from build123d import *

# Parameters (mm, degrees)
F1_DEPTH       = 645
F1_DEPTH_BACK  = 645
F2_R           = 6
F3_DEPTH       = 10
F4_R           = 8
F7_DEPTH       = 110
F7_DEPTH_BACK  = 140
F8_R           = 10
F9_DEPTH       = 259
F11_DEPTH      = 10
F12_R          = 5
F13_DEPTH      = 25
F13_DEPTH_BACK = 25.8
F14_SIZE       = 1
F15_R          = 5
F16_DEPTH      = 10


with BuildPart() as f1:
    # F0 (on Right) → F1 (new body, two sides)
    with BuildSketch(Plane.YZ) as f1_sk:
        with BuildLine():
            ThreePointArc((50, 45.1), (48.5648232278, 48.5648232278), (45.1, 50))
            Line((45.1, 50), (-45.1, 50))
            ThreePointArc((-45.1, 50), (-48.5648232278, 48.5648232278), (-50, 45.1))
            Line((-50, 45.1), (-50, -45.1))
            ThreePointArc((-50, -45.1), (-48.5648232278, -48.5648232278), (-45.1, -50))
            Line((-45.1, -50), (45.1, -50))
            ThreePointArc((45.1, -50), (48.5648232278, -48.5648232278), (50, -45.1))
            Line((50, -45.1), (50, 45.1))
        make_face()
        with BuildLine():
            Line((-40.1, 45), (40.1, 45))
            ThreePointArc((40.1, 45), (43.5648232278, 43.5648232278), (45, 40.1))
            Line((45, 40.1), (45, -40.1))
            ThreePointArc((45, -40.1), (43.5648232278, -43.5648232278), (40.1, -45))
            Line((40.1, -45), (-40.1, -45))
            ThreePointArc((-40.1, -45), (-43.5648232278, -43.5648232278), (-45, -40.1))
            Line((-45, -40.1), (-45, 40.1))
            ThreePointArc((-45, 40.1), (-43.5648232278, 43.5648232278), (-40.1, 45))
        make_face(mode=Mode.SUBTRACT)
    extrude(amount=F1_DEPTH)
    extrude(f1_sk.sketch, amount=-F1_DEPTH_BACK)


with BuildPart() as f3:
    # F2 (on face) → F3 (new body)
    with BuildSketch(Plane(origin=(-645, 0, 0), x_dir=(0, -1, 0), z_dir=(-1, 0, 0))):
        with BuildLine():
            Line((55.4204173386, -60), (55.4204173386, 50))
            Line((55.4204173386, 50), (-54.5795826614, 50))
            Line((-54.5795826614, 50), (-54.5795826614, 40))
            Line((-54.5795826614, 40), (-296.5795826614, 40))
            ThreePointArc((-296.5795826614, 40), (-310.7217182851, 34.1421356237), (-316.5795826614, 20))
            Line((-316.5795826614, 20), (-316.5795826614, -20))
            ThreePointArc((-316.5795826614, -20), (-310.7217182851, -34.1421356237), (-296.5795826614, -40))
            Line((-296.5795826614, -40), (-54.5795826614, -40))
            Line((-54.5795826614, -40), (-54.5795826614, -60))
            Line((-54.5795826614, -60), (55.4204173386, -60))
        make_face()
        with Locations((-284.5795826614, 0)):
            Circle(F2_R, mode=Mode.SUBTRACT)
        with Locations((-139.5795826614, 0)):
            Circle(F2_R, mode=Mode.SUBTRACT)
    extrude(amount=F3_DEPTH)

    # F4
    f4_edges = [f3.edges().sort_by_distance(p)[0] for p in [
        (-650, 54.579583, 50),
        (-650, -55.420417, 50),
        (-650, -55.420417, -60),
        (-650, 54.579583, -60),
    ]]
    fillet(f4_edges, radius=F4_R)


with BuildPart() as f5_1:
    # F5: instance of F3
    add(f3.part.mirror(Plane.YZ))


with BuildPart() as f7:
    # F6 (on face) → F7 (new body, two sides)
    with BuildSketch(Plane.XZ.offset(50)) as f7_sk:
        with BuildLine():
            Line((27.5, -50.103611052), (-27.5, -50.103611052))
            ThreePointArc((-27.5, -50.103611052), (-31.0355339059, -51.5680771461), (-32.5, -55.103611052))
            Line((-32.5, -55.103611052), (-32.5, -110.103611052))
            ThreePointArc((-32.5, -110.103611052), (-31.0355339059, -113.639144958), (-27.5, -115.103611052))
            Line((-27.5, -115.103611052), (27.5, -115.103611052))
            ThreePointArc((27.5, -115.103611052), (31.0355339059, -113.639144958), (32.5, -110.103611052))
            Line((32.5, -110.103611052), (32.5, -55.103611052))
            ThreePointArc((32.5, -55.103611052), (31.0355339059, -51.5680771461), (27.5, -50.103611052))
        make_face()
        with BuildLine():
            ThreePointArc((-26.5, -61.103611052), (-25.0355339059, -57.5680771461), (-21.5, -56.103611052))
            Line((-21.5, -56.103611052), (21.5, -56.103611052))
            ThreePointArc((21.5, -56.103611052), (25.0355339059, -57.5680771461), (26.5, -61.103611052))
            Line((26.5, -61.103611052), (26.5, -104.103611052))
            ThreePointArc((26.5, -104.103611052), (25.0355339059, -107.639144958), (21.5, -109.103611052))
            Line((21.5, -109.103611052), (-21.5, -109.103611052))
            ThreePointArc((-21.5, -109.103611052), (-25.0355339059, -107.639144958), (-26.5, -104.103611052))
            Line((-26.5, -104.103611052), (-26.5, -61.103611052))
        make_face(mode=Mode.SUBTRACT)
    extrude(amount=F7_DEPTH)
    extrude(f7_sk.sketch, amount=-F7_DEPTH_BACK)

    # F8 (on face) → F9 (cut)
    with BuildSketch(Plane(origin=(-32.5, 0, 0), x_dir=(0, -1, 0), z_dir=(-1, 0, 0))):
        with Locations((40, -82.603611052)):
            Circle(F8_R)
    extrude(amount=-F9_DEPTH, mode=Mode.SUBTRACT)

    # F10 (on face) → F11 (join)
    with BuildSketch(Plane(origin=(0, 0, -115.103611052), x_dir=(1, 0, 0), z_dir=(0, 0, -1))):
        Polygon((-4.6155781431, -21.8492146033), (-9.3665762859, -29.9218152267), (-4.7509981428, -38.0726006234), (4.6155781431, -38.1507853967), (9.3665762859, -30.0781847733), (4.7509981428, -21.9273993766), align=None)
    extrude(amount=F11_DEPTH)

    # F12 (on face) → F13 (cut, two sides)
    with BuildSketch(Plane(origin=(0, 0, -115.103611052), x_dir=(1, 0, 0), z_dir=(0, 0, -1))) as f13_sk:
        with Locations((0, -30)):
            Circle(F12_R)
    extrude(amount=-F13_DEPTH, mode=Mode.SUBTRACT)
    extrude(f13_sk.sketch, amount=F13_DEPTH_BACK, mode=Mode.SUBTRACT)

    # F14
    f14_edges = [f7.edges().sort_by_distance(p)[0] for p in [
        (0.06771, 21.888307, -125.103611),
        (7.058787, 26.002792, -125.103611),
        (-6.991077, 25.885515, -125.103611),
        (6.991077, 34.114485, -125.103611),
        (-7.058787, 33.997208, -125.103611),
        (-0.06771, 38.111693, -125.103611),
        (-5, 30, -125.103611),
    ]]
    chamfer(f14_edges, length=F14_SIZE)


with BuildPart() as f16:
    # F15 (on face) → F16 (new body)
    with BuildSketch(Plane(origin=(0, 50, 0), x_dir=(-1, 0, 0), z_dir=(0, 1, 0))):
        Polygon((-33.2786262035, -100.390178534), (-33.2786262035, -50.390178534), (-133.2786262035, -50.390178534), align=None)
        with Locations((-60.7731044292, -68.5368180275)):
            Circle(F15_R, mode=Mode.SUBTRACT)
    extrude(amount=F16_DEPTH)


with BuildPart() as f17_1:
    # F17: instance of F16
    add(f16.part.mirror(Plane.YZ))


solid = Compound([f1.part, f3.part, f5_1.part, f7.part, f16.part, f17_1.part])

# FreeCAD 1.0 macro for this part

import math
import FreeCAD as App
import Part
import Sketcher
from FreeCAD import Vector
Q = App.Units.Quantity


def edges_at(feature, points):
    """Names of the edges that pass closest to the given points."""
    edges = feature.Shape.Edges
    near = lambda p: min(range(len(edges)), key=lambda i: edges[i].distToShape(Part.Vertex(*p))[0])
    return sorted({f"Edge{near(p) + 1}" for p in points})


def add_polygon(sketch, points):
    """Adds a closed chain of lines whose ends are joined by coincident constraints."""
    first, n = sketch.GeometryCount, len(points)
    for a, b in zip(points, points[1:] + points[:1]):
        sketch.addGeometry(Part.LineSegment(App.Vector(*a, 0), App.Vector(*b, 0)), False)
    for i in range(n):
        sketch.addConstraint(Sketcher.Constraint("Coincident", first + i, 2, first + (i + 1) % n, 1))

doc = App.newDocument("Part")
body = doc.addObject("PartDesign::Body", "Body")

# Sketch on YZ plane
sketch1 = body.newObject("Sketcher::SketchObject", "Sketch")
sketch1.AttachmentSupport = (doc.getObject("YZ_Plane"), [""])
sketch1.MapMode = "FlatFace"
sketch1.addGeometry([
    Part.ArcOfCircle(Part.Circle(Vector(45.1, 45.1, 0), Vector(0, 0, 1), 4.9), math.radians(0), math.radians(90)),  # 0
    Part.LineSegment(Vector(45.1, 50, 0), Vector(-45.1, 50, 0)),  # 1
    Part.ArcOfCircle(Part.Circle(Vector(-45.1, 45.1, 0), Vector(0, 0, 1), 4.9), math.radians(90), math.radians(180)),  # 2
    Part.LineSegment(Vector(-50, 45.1, 0), Vector(-50, -45.1, 0)),  # 3
    Part.ArcOfCircle(Part.Circle(Vector(-45.1, -45.1, 0), Vector(0, 0, 1), 4.9), math.radians(180), math.radians(270)),  # 4
    Part.LineSegment(Vector(-45.1, -50, 0), Vector(45.1, -50, 0)),  # 5
    Part.ArcOfCircle(Part.Circle(Vector(45.1, -45.1, 0), Vector(0, 0, 1), 4.9), math.radians(-90), math.radians(0)),  # 6
    Part.LineSegment(Vector(50, -45.1, 0), Vector(50, 45.1, 0)),  # 7
    Part.ArcOfCircle(Part.Circle(Vector(-40.1, 40.1, 0), Vector(0, 0, 1), 4.9), math.radians(90), math.radians(180)),  # 8
    Part.LineSegment(Vector(-40.1, 45, 0), Vector(40.1, 45, 0)),  # 9
    Part.ArcOfCircle(Part.Circle(Vector(40.1, 40.1, 0), Vector(0, 0, 1), 4.9), math.radians(0), math.radians(90)),  # 10
    Part.LineSegment(Vector(45, 40.1, 0), Vector(45, -40.1, 0)),  # 11
    Part.ArcOfCircle(Part.Circle(Vector(40.1, -40.1, 0), Vector(0, 0, 1), 4.9), math.radians(-90), math.radians(0)),  # 12
    Part.LineSegment(Vector(40.1, -45, 0), Vector(-40.1, -45, 0)),  # 13
    Part.ArcOfCircle(Part.Circle(Vector(-40.1, -40.1, 0), Vector(0, 0, 1), 4.9), math.radians(180), math.radians(270)),  # 14
    Part.LineSegment(Vector(-45, -40.1, 0), Vector(-45, 40.1, 0)),  # 15
], False)
sketch1.addConstraint([
    Sketcher.Constraint("Tangent", 0, 2, 1, 1),
    Sketcher.Constraint("Tangent", 1, 2, 2, 1),
    Sketcher.Constraint("Tangent", 2, 2, 3, 1),
    Sketcher.Constraint("Tangent", 3, 2, 4, 1),
    Sketcher.Constraint("Tangent", 4, 2, 5, 1),
    Sketcher.Constraint("Tangent", 5, 2, 6, 1),
    Sketcher.Constraint("Tangent", 6, 2, 7, 1),
    Sketcher.Constraint("Tangent", 7, 2, 0, 1),
    Sketcher.Constraint("Tangent", 8, 1, 9, 1),
    Sketcher.Constraint("Tangent", 9, 2, 10, 2),
    Sketcher.Constraint("Tangent", 10, 1, 11, 1),
    Sketcher.Constraint("Tangent", 11, 2, 12, 2),
    Sketcher.Constraint("Tangent", 12, 1, 13, 1),
    Sketcher.Constraint("Tangent", 13, 2, 14, 2),
    Sketcher.Constraint("Tangent", 14, 1, 15, 1),
    Sketcher.Constraint("Tangent", 15, 2, 8, 2),
    Sketcher.Constraint("Horizontal", 1),
    Sketcher.Constraint("Vertical", 3),
    Sketcher.Constraint("Horizontal", 5),
    Sketcher.Constraint("Vertical", 7),
    Sketcher.Constraint("Horizontal", 9),
    Sketcher.Constraint("Vertical", 11),
    Sketcher.Constraint("Horizontal", 13),
    Sketcher.Constraint("Vertical", 15),
    Sketcher.Constraint("Equal", 0, 2),
    Sketcher.Constraint("Equal", 2, 4),
    Sketcher.Constraint("Equal", 4, 6),
    Sketcher.Constraint("Equal", 6, 8),
    Sketcher.Constraint("Equal", 8, 10),
    Sketcher.Constraint("Equal", 10, 12),
    Sketcher.Constraint("Equal", 12, 14),
    Sketcher.Constraint("Symmetric", 0, 3, 4, 3, -1, 1),
    Sketcher.Constraint("Symmetric", 8, 3, 12, 3, -1, 1),
    Sketcher.Constraint("Equal", 5, 3),
    Sketcher.Constraint("Equal", 13, 11),
    Sketcher.Constraint("Radius", 0, Q("4.9 mm")),
    Sketcher.Constraint("DistanceX", 1, 2, 1, 1, Q("90.2 mm")),
    Sketcher.Constraint("DistanceX", 9, 1, 9, 2, Q("80.2 mm")),
])
pad1 = body.newObject("PartDesign::Pad", "Pad")
pad1.Profile = sketch1
pad1.Type = "TwoLengths"
pad1.Length = 645
pad1.Length2 = 645
body2 = doc.addObject("PartDesign::Body", "Body001")

# Sketch on YZ plane
sketch2 = body2.newObject("Sketcher::SketchObject", "Sketch001")
sketch2.AttachmentSupport = (doc.getObject("YZ_Plane001"), [""])
sketch2.MapMode = "FlatFace"
sketch2.AttachmentOffset = App.Placement(Vector(0, 0, -645), App.Rotation())
sketch2.addGeometry([
    Part.LineSegment(Vector(-55, -60, 0), Vector(-55, 50, 0)),  # 0
    Part.LineSegment(Vector(-55, 50, 0), Vector(55, 50, 0)),  # 1
    Part.LineSegment(Vector(55, 50, 0), Vector(55, 40, 0)),  # 2
    Part.LineSegment(Vector(55, 40, 0), Vector(297, 40, 0)),  # 3
    Part.ArcOfCircle(Part.Circle(Vector(297, 20, 0), Vector(0, 0, 1), 20), math.radians(0), math.radians(90)),  # 4
    Part.LineSegment(Vector(317, 20, 0), Vector(317, -20, 0)),  # 5
    Part.ArcOfCircle(Part.Circle(Vector(297, -20, 0), Vector(0, 0, 1), 20), math.radians(-90), math.radians(0)),  # 6
    Part.LineSegment(Vector(297, -40, 0), Vector(55, -40, 0)),  # 7
    Part.LineSegment(Vector(55, -40, 0), Vector(55, -60, 0)),  # 8
    Part.LineSegment(Vector(55, -60, 0), Vector(-55, -60, 0)),  # 9
    Part.Circle(Vector(285, 0, 0), Vector(0, 0, 1), 6),  # 10
    Part.Circle(Vector(140, 0, 0), Vector(0, 0, 1), 6),  # 11
], False)
sketch2.addConstraint([
    Sketcher.Constraint("Coincident", 0, 2, 1, 1),
    Sketcher.Constraint("Coincident", 1, 2, 2, 1),
    Sketcher.Constraint("Coincident", 2, 2, 3, 1),
    Sketcher.Constraint("Tangent", 3, 2, 4, 2),
    Sketcher.Constraint("Tangent", 4, 1, 5, 1),
    Sketcher.Constraint("Tangent", 5, 2, 6, 2),
    Sketcher.Constraint("Tangent", 6, 1, 7, 1),
    Sketcher.Constraint("Coincident", 7, 2, 8, 1),
    Sketcher.Constraint("Coincident", 8, 2, 9, 1),
    Sketcher.Constraint("Coincident", 9, 2, 0, 1),
    Sketcher.Constraint("Vertical", 0),
    Sketcher.Constraint("Horizontal", 1),
    Sketcher.Constraint("Vertical", 2),
    Sketcher.Constraint("Horizontal", 3),
    Sketcher.Constraint("Vertical", 5),
    Sketcher.Constraint("Horizontal", 7),
    Sketcher.Constraint("Vertical", 8),
    Sketcher.Constraint("Horizontal", 9),
    Sketcher.Constraint("Equal", 4, 6),
    Sketcher.Constraint("Equal", 10, 11),
    Sketcher.Constraint("Symmetric", 2, 2, 7, 2, -1),
    Sketcher.Constraint("PointOnObject", 10, 3, -1),
    Sketcher.Constraint("PointOnObject", 11, 3, -1),
    Sketcher.Constraint("Equal", 9, 0),
    Sketcher.Constraint("Diameter", 10, Q("12 mm")),
    Sketcher.Constraint("Radius", 4, Q("20 mm")),
    Sketcher.Constraint("DistanceX", 1, 1, 1, 2, Q("110 mm")),
    Sketcher.Constraint("DistanceX", 3, 1, 3, 2, Q("242 mm")),
    Sketcher.Constraint("DistanceY", 2, 2, 2, 1, Q("10 mm")),
    Sketcher.Constraint("DistanceY", 5, 2, 5, 1, Q("40 mm")),
    Sketcher.Constraint("DistanceX", 10, 3, 4, 3, Q("12 mm")),
    Sketcher.Constraint("DistanceX", 11, 3, 10, 3, Q("145 mm")),
    Sketcher.Constraint("DistanceX", -1, 1, 4, 3, Q("296.579583 mm")),
])
pad2 = body2.newObject("PartDesign::Pad", "Pad001")
pad2.Profile = sketch2
pad2.Length = 10
pad2.Reversed = True
doc.recompute()

fillet = body2.newObject("PartDesign::Fillet", "Fillet")
fillet.Base = (pad2, edges_at(pad2, [
    (-650, 54.58, 50),
    (-650, -55.42, 50),
    (-650, -55.42, -60),
    (-650, 54.58, -60),
]))
fillet.Radius = 8
body3 = doc.addObject("PartDesign::Body", "Body002")
doc.recompute()

mirroring = doc.addObject("Part::Mirroring", "Mirroring")
mirroring.Source = body2
mirroring.Base = Vector(0, 0, 0)
mirroring.Normal = Vector(1, 0, 0)
body3.BaseFeature = mirroring
doc.recompute()
body4 = doc.addObject("PartDesign::Body", "Body003")

# Sketch on XZ plane
sketch3 = body4.newObject("Sketcher::SketchObject", "Sketch002")
sketch3.AttachmentSupport = (doc.getObject("XZ_Plane003"), [""])
sketch3.MapMode = "FlatFace"
sketch3.AttachmentOffset = App.Placement(Vector(0, 0, 50), App.Rotation())
sketch3.addGeometry([
    Part.LineSegment(Vector(28, -50, 0), Vector(-28, -50, 0)),  # 0
    Part.ArcOfCircle(Part.Circle(Vector(-28, -55, 0), Vector(0, 0, 1), 5), math.radians(90), math.radians(180)),  # 1
    Part.LineSegment(Vector(-32, -55, 0), Vector(-32, -110, 0)),  # 2
    Part.ArcOfCircle(Part.Circle(Vector(-28, -110, 0), Vector(0, 0, 1), 5), math.radians(180), math.radians(270)),  # 3
    Part.LineSegment(Vector(-28, -115, 0), Vector(28, -115, 0)),  # 4
    Part.ArcOfCircle(Part.Circle(Vector(28, -110, 0), Vector(0, 0, 1), 5), math.radians(-90), math.radians(0)),  # 5
    Part.LineSegment(Vector(32, -110, 0), Vector(32, -55, 0)),  # 6
    Part.ArcOfCircle(Part.Circle(Vector(28, -55, 0), Vector(0, 0, 1), 5), math.radians(0), math.radians(90)),  # 7
    Part.LineSegment(Vector(-26, -104, 0), Vector(-26, -61, 0)),  # 8
    Part.ArcOfCircle(Part.Circle(Vector(-22, -61, 0), Vector(0, 0, 1), 5), math.radians(90), math.radians(180)),  # 9
    Part.LineSegment(Vector(-22, -56, 0), Vector(22, -56, 0)),  # 10
    Part.ArcOfCircle(Part.Circle(Vector(22, -61, 0), Vector(0, 0, 1), 5), math.radians(0), math.radians(90)),  # 11
    Part.LineSegment(Vector(26, -61, 0), Vector(26, -104, 0)),  # 12
    Part.ArcOfCircle(Part.Circle(Vector(22, -104, 0), Vector(0, 0, 1), 5), math.radians(-90), math.radians(0)),  # 13
    Part.LineSegment(Vector(22, -109, 0), Vector(-22, -109, 0)),  # 14
    Part.ArcOfCircle(Part.Circle(Vector(-22, -104, 0), Vector(0, 0, 1), 5), math.radians(180), math.radians(270)),  # 15
], False)
sketch3.addConstraint([
    Sketcher.Constraint("Tangent", 0, 2, 1, 1),
    Sketcher.Constraint("Tangent", 1, 2, 2, 1),
    Sketcher.Constraint("Tangent", 2, 2, 3, 1),
    Sketcher.Constraint("Tangent", 3, 2, 4, 1),
    Sketcher.Constraint("Tangent", 4, 2, 5, 1),
    Sketcher.Constraint("Tangent", 5, 2, 6, 1),
    Sketcher.Constraint("Tangent", 6, 2, 7, 1),
    Sketcher.Constraint("Tangent", 7, 2, 0, 1),
    Sketcher.Constraint("Tangent", 8, 2, 9, 2),
    Sketcher.Constraint("Tangent", 9, 1, 10, 1),
    Sketcher.Constraint("Tangent", 10, 2, 11, 2),
    Sketcher.Constraint("Tangent", 11, 1, 12, 1),
    Sketcher.Constraint("Tangent", 12, 2, 13, 2),
    Sketcher.Constraint("Tangent", 13, 1, 14, 1),
    Sketcher.Constraint("Tangent", 14, 2, 15, 2),
    Sketcher.Constraint("Tangent", 15, 1, 8, 1),
    Sketcher.Constraint("Horizontal", 0),
    Sketcher.Constraint("Vertical", 2),
    Sketcher.Constraint("Horizontal", 4),
    Sketcher.Constraint("Vertical", 6),
    Sketcher.Constraint("Vertical", 8),
    Sketcher.Constraint("Horizontal", 10),
    Sketcher.Constraint("Vertical", 12),
    Sketcher.Constraint("Horizontal", 14),
    Sketcher.Constraint("Equal", 1, 3),
    Sketcher.Constraint("Equal", 3, 5),
    Sketcher.Constraint("Equal", 5, 7),
    Sketcher.Constraint("Equal", 7, 9),
    Sketcher.Constraint("Equal", 9, 11),
    Sketcher.Constraint("Equal", 11, 13),
    Sketcher.Constraint("Equal", 13, 15),
    Sketcher.Constraint("Equal", 4, 2),
    Sketcher.Constraint("Equal", 14, 8),
    Sketcher.Constraint("Radius", 1, Q("5 mm")),
    Sketcher.Constraint("DistanceX", 0, 2, 0, 1, Q("55 mm")),
    Sketcher.Constraint("DistanceX", 10, 1, 10, 2, Q("43 mm")),
    Sketcher.Constraint("DistanceX", 1, 3, 9, 3, Q("6 mm")),
    Sketcher.Constraint("DistanceY", 9, 3, 1, 3, Q("6 mm")),
    Sketcher.Constraint("DistanceX", 1, 3, -1, 1, Q("27.5 mm")),
    Sketcher.Constraint("DistanceY", 1, 3, -1, 1, Q("55.103611 mm")),
])
pad3 = body4.newObject("PartDesign::Pad", "Pad002")
pad3.Profile = sketch3
pad3.Type = "TwoLengths"
pad3.Length = 110
pad3.Length2 = 140

# Sketch on YZ plane
sketch4 = body4.newObject("Sketcher::SketchObject", "Sketch003")
sketch4.AttachmentSupport = (doc.getObject("YZ_Plane003"), [""])
sketch4.MapMode = "FlatFace"
sketch4.AttachmentOffset = App.Placement(Vector(0, 0, -32.5), App.Rotation())
sketch4.addGeometry(Part.Circle(Vector(-40, -83, 0), Vector(0, 0, 1), 10), False)
sketch4.addConstraint([
    Sketcher.Constraint("Diameter", 0, Q("20 mm")),
    Sketcher.Constraint("DistanceX", 0, 3, -1, 1, Q("40 mm")),
    Sketcher.Constraint("DistanceY", 0, 3, -1, 1, Q("82.603611 mm")),
])
pocket1 = body4.newObject("PartDesign::Pocket", "Pocket")
pocket1.Profile = sketch4
pocket1.Length = 259
pocket1.Reversed = True

# Sketch on XY plane
sketch5 = body4.newObject("Sketcher::SketchObject", "Sketch004")
sketch5.AttachmentSupport = (doc.getObject("XY_Plane003"), [""])
sketch5.MapMode = "FlatFace"
sketch5.AttachmentOffset = App.Placement(Vector(0, 0, -115.103611), App.Rotation())
add_polygon(sketch5, [(-5, 22), (-9, 30), (-5, 38), (5, 38), (9, 30), (5, 22)])  # lines 0-5
sketch5.addConstraint([
    Sketcher.Constraint("Parallel", 0, 3),
    Sketcher.Constraint("Parallel", 1, 4),
    Sketcher.Constraint("Parallel", 2, 5),
    Sketcher.Constraint("Equal", 0, 1),
    Sketcher.Constraint("Equal", 1, 2),
    Sketcher.Constraint("Equal", 2, 3),
    Sketcher.Constraint("DistanceX", 1, 2, -1, 1, Q("4.750998 mm")),
    Sketcher.Constraint("DistanceX", -1, 1, 4, 2, Q("4.750998 mm")),
    Sketcher.Constraint("DistanceX", 2, 2, 3, 2, Q("4.750998 mm")),
    Sketcher.Constraint("DistanceY", -1, 1, 1, 2, Q("38.072601 mm")),
    Sketcher.Constraint("DistanceY", -1, 1, 4, 2, Q("21.927399 mm")),
    Sketcher.Constraint("DistanceY", 3, 2, 2, 2, Q("8.072601 mm")),
])
pad4 = body4.newObject("PartDesign::Pad", "Pad003")
pad4.Profile = sketch5
pad4.Length = 10
pad4.Reversed = True

# Sketch on XY plane
sketch6 = body4.newObject("Sketcher::SketchObject", "Sketch005")
sketch6.AttachmentSupport = (doc.getObject("XY_Plane003"), [""])
sketch6.MapMode = "FlatFace"
sketch6.AttachmentOffset = App.Placement(Vector(0, 0, -115.103611), App.Rotation())
sketch6.addGeometry(Part.Circle(Vector(0, 30, 0), Vector(0, 0, 1), 5), False)
sketch6.addConstraint([
    Sketcher.Constraint("PointOnObject", 0, 3, -2),
    Sketcher.Constraint("Diameter", 0, Q("10 mm")),
    Sketcher.Constraint("DistanceY", -1, 1, 0, 3, Q("30 mm")),
])
pocket2 = body4.newObject("PartDesign::Pocket", "Pocket001")
pocket2.Profile = sketch6
pocket2.Type = "TwoLengths"
pocket2.Length = 25
pocket2.Length2 = 25.8
pocket2.Reversed = True
doc.recompute()

chamfer = body4.newObject("PartDesign::Chamfer", "Chamfer")
chamfer.Base = (pocket2, edges_at(pocket2, [
    (0.068, 21.888, -125.104),
    (7.059, 26.003, -125.104),
    (-6.991, 25.886, -125.104),
    (6.991, 34.114, -125.104),
    (-7.059, 33.997, -125.104),
    (-0.068, 38.112, -125.104),
    (-5, 30, -125.104),
]))
chamfer.Size = 1
body5 = doc.addObject("PartDesign::Body", "Body004")

# Sketch on XZ plane
sketch7 = body5.newObject("Sketcher::SketchObject", "Sketch006")
sketch7.AttachmentSupport = (doc.getObject("XZ_Plane004"), [""])
sketch7.MapMode = "FlatFace"
sketch7.AttachmentOffset = App.Placement(Vector(0, 0, -50), App.Rotation())
add_polygon(sketch7, [(33, -100), (33, -50), (133, -50)])  # lines 0-2
sketch7.addGeometry(Part.Circle(Vector(61, -69, 0), Vector(0, 0, 1), 5), False)  # 3
sketch7.addConstraint([
    Sketcher.Constraint("Vertical", 0),
    Sketcher.Constraint("Horizontal", 1),
    Sketcher.Constraint("Diameter", 3, Q("10 mm")),
    Sketcher.Constraint("DistanceX", 1, 1, 1, 2, Q("100 mm")),
    Sketcher.Constraint("DistanceY", 0, 1, 0, 2, Q("50 mm")),
    Sketcher.Constraint("DistanceY", 3, 3, -1, 1, Q("68.536818 mm")),
    Sketcher.Constraint("DistanceY", 0, 2, -1, 1, Q("50.390179 mm")),
    Sketcher.Constraint("DistanceX", 0, 2, 3, 3, Q("27.494478 mm")),
    Sketcher.Constraint("DistanceX", -1, 1, 3, 3, Q("60.773104 mm")),
])
pad5 = body5.newObject("PartDesign::Pad", "Pad004")
pad5.Profile = sketch7
pad5.Length = 10
pad5.Reversed = True
body6 = doc.addObject("PartDesign::Body", "Body005")
doc.recompute()

mirroring2 = doc.addObject("Part::Mirroring", "Mirroring001")
mirroring2.Source = body5
mirroring2.Base = Vector(0, 0, 0)
mirroring2.Normal = Vector(1, 0, 0)
body6.BaseFeature = mirroring2
doc.recompute()
mirroring.Visibility = False
mirroring2.Visibility = False

doc.recompute()
